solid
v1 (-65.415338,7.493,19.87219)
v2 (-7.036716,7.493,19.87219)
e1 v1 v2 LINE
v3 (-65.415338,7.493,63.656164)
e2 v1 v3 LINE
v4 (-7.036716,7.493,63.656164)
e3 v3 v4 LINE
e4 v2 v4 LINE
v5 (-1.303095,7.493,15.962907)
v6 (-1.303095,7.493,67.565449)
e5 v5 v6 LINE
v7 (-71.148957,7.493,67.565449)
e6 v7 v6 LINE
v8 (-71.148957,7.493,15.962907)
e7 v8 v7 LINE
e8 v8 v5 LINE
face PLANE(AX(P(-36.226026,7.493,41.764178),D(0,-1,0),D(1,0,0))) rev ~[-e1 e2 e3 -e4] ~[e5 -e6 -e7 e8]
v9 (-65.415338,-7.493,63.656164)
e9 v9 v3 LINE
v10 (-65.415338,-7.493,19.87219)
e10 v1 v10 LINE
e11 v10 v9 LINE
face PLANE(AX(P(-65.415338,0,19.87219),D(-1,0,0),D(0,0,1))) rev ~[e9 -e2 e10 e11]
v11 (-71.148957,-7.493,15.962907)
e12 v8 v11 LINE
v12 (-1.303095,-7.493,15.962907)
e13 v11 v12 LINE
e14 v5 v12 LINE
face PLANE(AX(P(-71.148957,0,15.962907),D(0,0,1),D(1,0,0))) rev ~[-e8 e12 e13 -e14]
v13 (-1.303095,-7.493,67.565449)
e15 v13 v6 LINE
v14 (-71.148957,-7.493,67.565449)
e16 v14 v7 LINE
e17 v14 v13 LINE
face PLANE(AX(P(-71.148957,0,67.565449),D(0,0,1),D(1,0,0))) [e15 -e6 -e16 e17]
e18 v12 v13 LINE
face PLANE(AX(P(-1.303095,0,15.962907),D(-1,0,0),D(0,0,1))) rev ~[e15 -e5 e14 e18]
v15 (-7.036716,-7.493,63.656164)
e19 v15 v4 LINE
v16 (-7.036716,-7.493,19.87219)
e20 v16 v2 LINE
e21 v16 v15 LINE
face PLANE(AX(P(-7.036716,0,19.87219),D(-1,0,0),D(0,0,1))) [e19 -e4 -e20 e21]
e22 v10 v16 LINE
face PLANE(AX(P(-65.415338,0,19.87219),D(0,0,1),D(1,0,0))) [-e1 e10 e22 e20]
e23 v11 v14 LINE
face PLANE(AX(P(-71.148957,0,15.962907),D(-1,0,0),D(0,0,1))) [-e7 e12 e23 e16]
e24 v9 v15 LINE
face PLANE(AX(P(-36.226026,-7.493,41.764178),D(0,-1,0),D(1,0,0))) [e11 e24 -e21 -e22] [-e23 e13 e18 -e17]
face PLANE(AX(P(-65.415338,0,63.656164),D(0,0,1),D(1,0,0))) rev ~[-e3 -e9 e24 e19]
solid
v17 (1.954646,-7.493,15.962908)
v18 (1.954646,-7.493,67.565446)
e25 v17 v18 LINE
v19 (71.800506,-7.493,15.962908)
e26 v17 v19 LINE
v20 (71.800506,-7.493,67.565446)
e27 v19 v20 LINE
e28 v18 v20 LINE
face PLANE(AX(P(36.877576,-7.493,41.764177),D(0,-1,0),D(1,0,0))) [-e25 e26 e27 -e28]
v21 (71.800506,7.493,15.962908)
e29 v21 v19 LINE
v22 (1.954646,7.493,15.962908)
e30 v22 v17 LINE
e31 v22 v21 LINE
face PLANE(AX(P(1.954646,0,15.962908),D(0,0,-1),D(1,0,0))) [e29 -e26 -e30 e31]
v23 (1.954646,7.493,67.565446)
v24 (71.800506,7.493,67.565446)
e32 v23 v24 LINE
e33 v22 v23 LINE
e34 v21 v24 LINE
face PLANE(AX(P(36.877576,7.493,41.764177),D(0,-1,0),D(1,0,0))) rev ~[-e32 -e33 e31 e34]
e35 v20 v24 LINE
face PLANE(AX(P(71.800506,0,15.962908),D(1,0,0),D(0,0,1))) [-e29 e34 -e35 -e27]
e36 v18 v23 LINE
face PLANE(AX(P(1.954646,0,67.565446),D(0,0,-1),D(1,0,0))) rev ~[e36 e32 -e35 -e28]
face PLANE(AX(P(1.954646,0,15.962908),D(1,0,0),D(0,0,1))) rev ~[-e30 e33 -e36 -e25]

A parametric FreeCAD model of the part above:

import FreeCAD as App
import Part
import Sketcher
from FreeCAD import Vector
Q = App.Units.Quantity

doc = App.newDocument("Part")
body = doc.addObject("PartDesign::Body", "Body")
body.AllowCompound = True

sketch1 = doc.addObject("Sketcher::SketchObject", "Sketch")
body.addObject(sketch1)
sketch1.AttachmentSupport = (doc.XZ_Plane, [""])
sketch1.MapMode = "FlatFace"
sketch1.addGeometry([
    Part.LineSegment(Vector(-71, 68, 0), Vector(-71, 16, 0)),
    Part.LineSegment(Vector(-71, 16, 0), Vector(-1, 16, 0)),
    Part.LineSegment(Vector(-1, 16, 0), Vector(-1, 68, 0)),
    Part.LineSegment(Vector(-1, 68, 0), Vector(-71, 68, 0)),
    Part.LineSegment(Vector(-7, 20, 0), Vector(-65, 20, 0)),
    Part.LineSegment(Vector(-65, 20, 0), Vector(-65, 64, 0)),
    Part.LineSegment(Vector(-65, 64, 0), Vector(-7, 64, 0)),
    Part.LineSegment(Vector(-7, 64, 0), Vector(-7, 20, 0)),
    Part.LineSegment(Vector(2, 68, 0), Vector(2, 16, 0)),
    Part.LineSegment(Vector(2, 16, 0), Vector(72, 16, 0)),
    Part.LineSegment(Vector(72, 16, 0), Vector(72, 68, 0)),
    Part.LineSegment(Vector(72, 68, 0), Vector(2, 68, 0)),
], False)
sketch1.addConstraint([
    Sketcher.Constraint("Coincident", 0, 2, 1, 1),
    Sketcher.Constraint("Coincident", 1, 2, 2, 1),
    Sketcher.Constraint("Coincident", 2, 2, 3, 1),
    Sketcher.Constraint("Coincident", 3, 2, 0, 1),
    Sketcher.Constraint("Coincident", 4, 2, 5, 1),
    Sketcher.Constraint("Coincident", 5, 2, 6, 1),
    Sketcher.Constraint("Coincident", 6, 2, 7, 1),
    Sketcher.Constraint("Coincident", 7, 2, 4, 1),
    Sketcher.Constraint("Coincident", 8, 2, 9, 1),
    Sketcher.Constraint("Coincident", 9, 2, 10, 1),
    Sketcher.Constraint("Coincident", 10, 2, 11, 1),
    Sketcher.Constraint("Coincident", 11, 2, 8, 1),
    Sketcher.Constraint("Vertical", 0),
    Sketcher.Constraint("Horizontal", 1),
    Sketcher.Constraint("Vertical", 2),
    Sketcher.Constraint("Horizontal", 3),
    Sketcher.Constraint("Horizontal", 4),
    Sketcher.Constraint("Vertical", 5),
    Sketcher.Constraint("Horizontal", 6),
    Sketcher.Constraint("Vertical", 7),
    Sketcher.Constraint("Vertical", 8),
    Sketcher.Constraint("Horizontal", 9),
    Sketcher.Constraint("Vertical", 10),
    Sketcher.Constraint("Horizontal", 11),
    Sketcher.Constraint("Horizontal", 1, 2, 8, 2),
    Sketcher.Constraint("DistanceX", 9, 1, 9, 2, Q("69.84586 mm")),
    Sketcher.Constraint("DistanceY", 8, 2, 8, 1, Q("51.602539 mm")),
    Sketcher.Constraint("DistanceX", 1, 2, 9, 2, Q("73.1036 mm")),
    Sketcher.Constraint("DistanceX", 1, 1, 1, 2, Q("69.845863 mm")),
    Sketcher.Constraint("DistanceX", 4, 2, 4, 1, Q("58.378622 mm")),
    Sketcher.Constraint("DistanceY", 0, 2, 0, 1, Q("51.602543 mm")),
    Sketcher.Constraint("DistanceY", 5, 1, 5, 2, Q("43.783974 mm")),
    Sketcher.Constraint("DistanceY", -1, 1, 2, 2, Q("67.565449 mm")),
    Sketcher.Constraint("DistanceX", 4, 2, -1, 1, Q("65.415338 mm")),
    Sketcher.Constraint("DistanceY", -1, 1, 4, 2, Q("19.87219 mm")),
    Sketcher.Constraint("DistanceX", 0, 2, 4, 2, Q("5.733619 mm")),
])
pad1 = doc.addObject("PartDesign::Pad", "Pad")
body.addObject(pad1)
pad1.Profile = sketch1
pad1.Length = Q("0.59 in")
pad1.Midplane = True

doc.recompute()
